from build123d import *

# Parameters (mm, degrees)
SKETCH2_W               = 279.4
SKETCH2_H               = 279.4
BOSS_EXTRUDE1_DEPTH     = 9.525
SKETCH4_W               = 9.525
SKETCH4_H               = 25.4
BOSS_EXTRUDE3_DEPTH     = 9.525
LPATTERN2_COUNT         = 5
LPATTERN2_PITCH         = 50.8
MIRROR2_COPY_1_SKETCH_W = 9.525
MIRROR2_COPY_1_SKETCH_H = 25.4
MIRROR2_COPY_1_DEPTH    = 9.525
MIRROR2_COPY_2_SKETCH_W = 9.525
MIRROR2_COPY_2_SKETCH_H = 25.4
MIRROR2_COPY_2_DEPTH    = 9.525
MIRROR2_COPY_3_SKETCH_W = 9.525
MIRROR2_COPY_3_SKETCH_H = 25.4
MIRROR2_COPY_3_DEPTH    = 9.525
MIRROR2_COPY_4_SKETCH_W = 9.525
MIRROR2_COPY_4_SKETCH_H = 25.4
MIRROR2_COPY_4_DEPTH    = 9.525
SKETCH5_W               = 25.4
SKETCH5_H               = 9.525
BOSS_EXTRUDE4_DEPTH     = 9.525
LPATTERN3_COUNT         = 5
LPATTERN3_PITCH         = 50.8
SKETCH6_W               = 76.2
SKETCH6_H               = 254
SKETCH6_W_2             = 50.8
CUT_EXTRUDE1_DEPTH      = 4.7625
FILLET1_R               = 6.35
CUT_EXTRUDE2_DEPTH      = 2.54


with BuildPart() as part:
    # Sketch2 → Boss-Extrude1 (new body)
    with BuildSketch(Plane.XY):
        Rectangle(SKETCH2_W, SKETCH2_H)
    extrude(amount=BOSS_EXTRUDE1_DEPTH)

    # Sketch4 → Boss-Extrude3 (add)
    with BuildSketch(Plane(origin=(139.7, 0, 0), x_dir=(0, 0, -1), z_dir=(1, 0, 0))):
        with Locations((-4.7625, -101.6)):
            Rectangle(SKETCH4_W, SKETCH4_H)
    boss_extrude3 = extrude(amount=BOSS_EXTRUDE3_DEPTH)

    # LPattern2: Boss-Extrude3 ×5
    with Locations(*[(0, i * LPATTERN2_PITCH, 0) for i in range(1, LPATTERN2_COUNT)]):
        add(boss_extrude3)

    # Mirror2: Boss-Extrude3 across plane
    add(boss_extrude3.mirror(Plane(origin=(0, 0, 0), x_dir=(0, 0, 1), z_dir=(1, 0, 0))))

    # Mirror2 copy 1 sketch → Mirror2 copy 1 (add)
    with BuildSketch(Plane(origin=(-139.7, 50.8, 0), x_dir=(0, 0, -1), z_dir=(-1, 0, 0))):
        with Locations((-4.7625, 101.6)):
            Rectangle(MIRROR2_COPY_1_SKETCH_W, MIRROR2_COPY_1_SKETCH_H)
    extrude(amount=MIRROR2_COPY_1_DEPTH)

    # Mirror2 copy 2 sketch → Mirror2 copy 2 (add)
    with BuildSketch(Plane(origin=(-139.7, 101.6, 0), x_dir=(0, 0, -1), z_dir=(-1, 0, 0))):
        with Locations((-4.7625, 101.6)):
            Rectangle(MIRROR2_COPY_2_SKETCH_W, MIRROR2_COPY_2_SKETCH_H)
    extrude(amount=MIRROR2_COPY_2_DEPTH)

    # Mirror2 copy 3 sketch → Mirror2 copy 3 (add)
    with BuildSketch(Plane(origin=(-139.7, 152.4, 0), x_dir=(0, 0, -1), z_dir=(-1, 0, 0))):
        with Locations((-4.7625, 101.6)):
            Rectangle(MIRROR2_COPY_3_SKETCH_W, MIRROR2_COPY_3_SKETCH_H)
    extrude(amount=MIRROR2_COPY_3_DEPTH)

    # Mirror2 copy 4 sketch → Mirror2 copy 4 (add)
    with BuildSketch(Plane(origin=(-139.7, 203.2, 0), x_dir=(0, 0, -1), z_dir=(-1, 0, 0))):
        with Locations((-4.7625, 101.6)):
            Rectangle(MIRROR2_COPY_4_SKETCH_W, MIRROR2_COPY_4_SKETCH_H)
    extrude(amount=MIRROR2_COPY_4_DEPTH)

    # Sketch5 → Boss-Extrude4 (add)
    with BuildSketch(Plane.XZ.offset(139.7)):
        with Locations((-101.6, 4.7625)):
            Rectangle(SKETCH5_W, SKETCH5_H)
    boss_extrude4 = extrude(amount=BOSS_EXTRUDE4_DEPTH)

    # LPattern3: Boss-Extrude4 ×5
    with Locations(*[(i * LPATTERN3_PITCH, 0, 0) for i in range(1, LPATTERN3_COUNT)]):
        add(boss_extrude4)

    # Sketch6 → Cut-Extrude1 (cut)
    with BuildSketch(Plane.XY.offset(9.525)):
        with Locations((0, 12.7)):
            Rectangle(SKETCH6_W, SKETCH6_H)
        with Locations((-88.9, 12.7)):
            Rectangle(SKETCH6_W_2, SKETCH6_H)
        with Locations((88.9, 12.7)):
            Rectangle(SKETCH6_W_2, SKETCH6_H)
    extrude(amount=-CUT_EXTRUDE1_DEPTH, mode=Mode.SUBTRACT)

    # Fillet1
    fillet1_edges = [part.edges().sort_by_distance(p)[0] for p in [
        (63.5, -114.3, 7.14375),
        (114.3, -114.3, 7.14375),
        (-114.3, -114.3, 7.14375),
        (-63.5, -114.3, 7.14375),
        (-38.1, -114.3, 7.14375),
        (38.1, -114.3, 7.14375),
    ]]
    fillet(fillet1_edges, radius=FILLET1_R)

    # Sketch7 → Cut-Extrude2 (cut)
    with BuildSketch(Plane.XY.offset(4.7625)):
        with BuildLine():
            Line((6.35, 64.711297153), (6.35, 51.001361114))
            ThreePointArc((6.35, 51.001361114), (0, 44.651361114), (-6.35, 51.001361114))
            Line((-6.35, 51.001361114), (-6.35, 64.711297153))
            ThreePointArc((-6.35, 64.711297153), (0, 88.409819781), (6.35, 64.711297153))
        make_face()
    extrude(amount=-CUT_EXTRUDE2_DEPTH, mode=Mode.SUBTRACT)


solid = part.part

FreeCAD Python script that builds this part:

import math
import FreeCAD as App
import Part
import Sketcher
from FreeCAD import Vector
Q = App.Units.Quantity


def edges_at(feature, points):
    """Names of the edges that pass closest to the given points."""
    edges = feature.Shape.Edges
    near = lambda p: min(range(len(edges)), key=lambda i: edges[i].distToShape(Part.Vertex(*p))[0])
    return sorted({f"Edge{near(p) + 1}" for p in points})


def add_polygon(sketch, points):
    """Adds a closed chain of lines whose ends are joined by coincident constraints."""
    first, n = sketch.GeometryCount, len(points)
    for a, b in zip(points, points[1:] + points[:1]):
        sketch.addGeometry(Part.LineSegment(App.Vector(*a, 0), App.Vector(*b, 0)), False)
    for i in range(n):
        sketch.addConstraint(Sketcher.Constraint("Coincident", first + i, 2, first + (i + 1) % n, 1))

doc = App.newDocument("Part")
body = doc.addObject("PartDesign::Body", "Body")

# Sketch on XY plane
sketch1 = body.newObject("Sketcher::SketchObject", "Sketch")
sketch1.AttachmentSupport = (doc.getObject("XY_Plane"), [""])
sketch1.MapMode = "FlatFace"
add_polygon(sketch1, [(-140, 140), (-140, -140), (140, -140), (140, 140)])  # lines 0-3
sketch1.addConstraint([
    Sketcher.Constraint("Vertical", 0),
    Sketcher.Constraint("Horizontal", 1),
    Sketcher.Constraint("Vertical", 2),
    Sketcher.Constraint("Horizontal", 3),
    Sketcher.Constraint("Symmetric", 0, 2, 2, 2, -1, 1),
    Sketcher.Constraint("Equal", 3, 0),
    Sketcher.Constraint("DistanceX", 1, 1, 1, 2, Q("11 in")),
])
pad1 = body.newObject("PartDesign::Pad", "Pad")
pad1.Profile = sketch1
pad1.Length = Q("0.375 in")

# Sketch on YZ plane
sketch2 = body.newObject("Sketcher::SketchObject", "Sketch001")
sketch2.AttachmentSupport = (doc.getObject("YZ_Plane"), [""])
sketch2.MapMode = "FlatFace"
sketch2.AttachmentOffset = App.Placement(Vector(0, 0, 5.5 * 25.4), App.Rotation())
add_polygon(sketch2, [(-89, 10), (-114, 10), (-114, 0), (-89, 0)])  # lines 0-3
sketch2.addConstraint([
    Sketcher.Constraint("Horizontal", 0),
    Sketcher.Constraint("Vertical", 1),
    Sketcher.Constraint("Horizontal", 2),
    Sketcher.Constraint("Vertical", 3),
    Sketcher.Constraint("PointOnObject", 1, 2, -1),
    Sketcher.Constraint("DistanceX", 0, 2, 0, 1, Q("1 in")),
    Sketcher.Constraint("DistanceX", 0, 2, -1, 1, Q("4.5 in")),
    Sketcher.Constraint("DistanceY", 1, 2, 1, 1, Q("0.375 in")),
])
pad2 = body.newObject("PartDesign::Pad", "Pad001")
pad2.Profile = sketch2
pad2.Length = Q("0.375 in")
doc.recompute()

linearpattern = body.newObject("PartDesign::LinearPattern", "LinearPattern")
linearpattern.Originals = [pad2]
linearpattern.Direction = (doc.getObject("Y_Axis"), [""])
linearpattern.Mode = "offset"
linearpattern.Offset = Q("2 in")
linearpattern.Occurrences = 5
body.Tip = linearpattern
doc.recompute()

mirrored = body.newObject("PartDesign::Mirrored", "Mirrored")
mirrored.Originals = [pad2]
mirrored.MirrorPlane = (doc.getObject("YZ_Plane"), [""])
body.Tip = mirrored

# Sketch on YZ plane
sketch3 = body.newObject("Sketcher::SketchObject", "Sketch002")
sketch3.AttachmentSupport = (doc.getObject("YZ_Plane"), [""])
sketch3.MapMode = "FlatFace"
sketch3.AttachmentOffset = App.Placement(Vector(0, 0, -5.5 * 25.4), App.Rotation())
add_polygon(sketch3, [(-64, 10), (-38, 10), (-38, 0), (-64, 0)])  # lines 0-3
sketch3.addConstraint([
    Sketcher.Constraint("Horizontal", 0),
    Sketcher.Constraint("Vertical", 1),
    Sketcher.Constraint("Horizontal", 2),
    Sketcher.Constraint("Vertical", 3),
    Sketcher.Constraint("PointOnObject", 1, 2, -1),
    Sketcher.Constraint("DistanceX", 0, 1, 0, 2, Q("1 in")),
    Sketcher.Constraint("DistanceX", 0, 2, -1, 1, Q("1.5 in")),
    Sketcher.Constraint("DistanceY", 1, 2, 1, 1, Q("0.375 in")),
])
pad3 = body.newObject("PartDesign::Pad", "Pad002")
pad3.Profile = sketch3
pad3.Length = Q("0.375 in")
pad3.Reversed = True

# Sketch on YZ plane
sketch4 = body.newObject("Sketcher::SketchObject", "Sketch003")
sketch4.AttachmentSupport = (doc.getObject("YZ_Plane"), [""])
sketch4.MapMode = "FlatFace"
sketch4.AttachmentOffset = App.Placement(Vector(0, 0, -5.5 * 25.4), App.Rotation())
add_polygon(sketch4, [(-13, 10), (13, 10), (13, 0), (-13, 0)])  # lines 0-3
sketch4.addConstraint([
    Sketcher.Constraint("Horizontal", 0),
    Sketcher.Constraint("Vertical", 1),
    Sketcher.Constraint("Horizontal", 2),
    Sketcher.Constraint("Vertical", 3),
    Sketcher.Constraint("Symmetric", 1, 2, 2, 2, -1, 1),
    Sketcher.Constraint("DistanceX", 0, 1, 0, 2, Q("1 in")),
    Sketcher.Constraint("DistanceY", 1, 2, 1, 1, Q("0.375 in")),
])
pad4 = body.newObject("PartDesign::Pad", "Pad003")
pad4.Profile = sketch4
pad4.Length = Q("0.375 in")
pad4.Reversed = True

# Sketch on YZ plane
sketch5 = body.newObject("Sketcher::SketchObject", "Sketch004")
sketch5.AttachmentSupport = (doc.getObject("YZ_Plane"), [""])
sketch5.MapMode = "FlatFace"
sketch5.AttachmentOffset = App.Placement(Vector(0, 0, -5.5 * 25.4), App.Rotation())
add_polygon(sketch5, [(38, 10), (64, 10), (64, 0), (38, 0)])  # lines 0-3
sketch5.addConstraint([
    Sketcher.Constraint("Horizontal", 0),
    Sketcher.Constraint("Vertical", 1),
    Sketcher.Constraint("Horizontal", 2),
    Sketcher.Constraint("Vertical", 3),
    Sketcher.Constraint("PointOnObject", 1, 2, -1),
    Sketcher.Constraint("DistanceX", 0, 1, 0, 2, Q("1 in")),
    Sketcher.Constraint("DistanceX", -1, 1, 0, 2, Q("2.5 in")),
    Sketcher.Constraint("DistanceY", 1, 2, 1, 1, Q("0.375 in")),
])
pad5 = body.newObject("PartDesign::Pad", "Pad004")
pad5.Profile = sketch5
pad5.Length = Q("0.375 in")
pad5.Reversed = True

# Sketch on YZ plane
sketch6 = body.newObject("Sketcher::SketchObject", "Sketch005")
sketch6.AttachmentSupport = (doc.getObject("YZ_Plane"), [""])
sketch6.MapMode = "FlatFace"
sketch6.AttachmentOffset = App.Placement(Vector(0, 0, -5.5 * 25.4), App.Rotation())
add_polygon(sketch6, [(89, 10), (114, 10), (114, 0), (89, 0)])  # lines 0-3
sketch6.addConstraint([
    Sketcher.Constraint("Horizontal", 0),
    Sketcher.Constraint("Vertical", 1),
    Sketcher.Constraint("Horizontal", 2),
    Sketcher.Constraint("Vertical", 3),
    Sketcher.Constraint("PointOnObject", 1, 2, -1),
    Sketcher.Constraint("DistanceX", 0, 1, 0, 2, Q("1 in")),
    Sketcher.Constraint("DistanceX", -1, 1, 0, 2, Q("4.5 in")),
    Sketcher.Constraint("DistanceY", 1, 2, 1, 1, Q("0.375 in")),
])
pad6 = body.newObject("PartDesign::Pad", "Pad005")
pad6.Profile = sketch6
pad6.Length = Q("0.375 in")
pad6.Reversed = True

# Sketch on XZ plane
sketch7 = body.newObject("Sketcher::SketchObject", "Sketch006")
sketch7.AttachmentSupport = (doc.getObject("XZ_Plane"), [""])
sketch7.MapMode = "FlatFace"
sketch7.AttachmentOffset = App.Placement(Vector(0, 0, 5.5 * 25.4), App.Rotation())
add_polygon(sketch7, [(-114, 10), (-114, 0), (-89, 0), (-89, 10)])  # lines 0-3
sketch7.addConstraint([
    Sketcher.Constraint("Vertical", 0),
    Sketcher.Constraint("Horizontal", 1),
    Sketcher.Constraint("Vertical", 2),
    Sketcher.Constraint("Horizontal", 3),
    Sketcher.Constraint("PointOnObject", 0, 2, -1),
    Sketcher.Constraint("DistanceX", 1, 1, 1, 2, Q("1 in")),
    Sketcher.Constraint("DistanceX", 0, 2, -1, 1, Q("4.5 in")),
    Sketcher.Constraint("DistanceY", 0, 2, 0, 1, Q("0.375 in")),
])
pad7 = body.newObject("PartDesign::Pad", "Pad006")
pad7.Profile = sketch7
pad7.Length = Q("0.375 in")
doc.recompute()

linearpattern2 = body.newObject("PartDesign::LinearPattern", "LinearPattern001")
linearpattern2.Originals = [pad7]
linearpattern2.Direction = (doc.getObject("X_Axis"), [""])
linearpattern2.Mode = "offset"
linearpattern2.Offset = Q("2 in")
linearpattern2.Occurrences = 5
body.Tip = linearpattern2

# Sketch on XY plane
sketch8 = body.newObject("Sketcher::SketchObject", "Sketch007")
sketch8.AttachmentSupport = (doc.getObject("XY_Plane"), [""])
sketch8.MapMode = "FlatFace"
sketch8.AttachmentOffset = App.Placement(Vector(0, 0, 0.375 * 25.4), App.Rotation())
add_polygon(sketch8, [(-38, 140), (-38, -114), (38, -114), (38, 140)])  # lines 0-3
add_polygon(sketch8, [(-114, 140), (-114, -114), (-64, -114), (-64, 140)])  # lines 4-7
add_polygon(sketch8, [(64, 140), (64, -114), (114, -114), (114, 140)])  # lines 8-11
sketch8.addConstraint([
    Sketcher.Constraint("Vertical", 0),
    Sketcher.Constraint("Horizontal", 1),
    Sketcher.Constraint("Vertical", 2),
    Sketcher.Constraint("Horizontal", 3),
    Sketcher.Constraint("Vertical", 4),
    Sketcher.Constraint("Horizontal", 5),
    Sketcher.Constraint("Vertical", 6),
    Sketcher.Constraint("Horizontal", 7),
    Sketcher.Constraint("Vertical", 8),
    Sketcher.Constraint("Horizontal", 9),
    Sketcher.Constraint("Vertical", 10),
    Sketcher.Constraint("Horizontal", 11),
    Sketcher.Constraint("Symmetric", 5, 2, 8, 2, -2),
    Sketcher.Constraint("Symmetric", 7, 2, 10, 2, -2),
    Sketcher.Constraint("Horizontal", 1, 2, 4, 2),
    Sketcher.Constraint("Horizontal", 3, 2, 6, 2),
    Sketcher.Constraint("DistanceX", 1, 1, 1, 2, Q("3 in")),
    Sketcher.Constraint("DistanceX", 5, 1, 5, 2, Q("2 in")),
    Sketcher.Constraint("DistanceY", 0, 2, 0, 1, Q("10 in")),
    Sketcher.Constraint("DistanceX", 4, 2, 0, 2, Q("3 in")),
    Sketcher.Constraint("DistanceX", 1, 2, 8, 2, Q("1 in")),
    Sketcher.Constraint("DistanceY", 0, 2, -1, 1, Q("4.5 in")),
])
pocket1 = body.newObject("PartDesign::Pocket", "Pocket")
pocket1.Profile = sketch8
pocket1.Length = Q("0.1875 in")
doc.recompute()

fillet = body.newObject("PartDesign::Fillet", "Fillet")
fillet.Base = (pocket1, edges_at(pocket1, [
    (63.5, -114.3, 7.144),
    (114.3, -114.3, 7.144),
    (-114.3, -114.3, 7.144),
    (-63.5, -114.3, 7.144),
    (-38.1, -114.3, 7.144),
    (38.1, -114.3, 7.144),
]))
fillet.Radius = Q("0.25 in")

# Sketch on XY plane
sketch9 = body.newObject("Sketcher::SketchObject", "Sketch008")
sketch9.AttachmentSupport = (doc.getObject("XY_Plane"), [""])
sketch9.MapMode = "FlatFace"
sketch9.AttachmentOffset = App.Placement(Vector(0, 0, 0.1875 * 25.4), App.Rotation())
sketch9.addGeometry([
    Part.LineSegment(Vector(6, 51, 0), Vector(6, 65, 0)),
    Part.ArcOfCircle(Part.Circle(Vector(0, 76, 0), Vector(0, 0, 1), 13), math.radians(-60), math.radians(240)),
    Part.LineSegment(Vector(-6, 65, 0), Vector(-6, 51, 0)),
    Part.ArcOfCircle(Part.Circle(Vector(0, 51, 0), Vector(0, 0, 1), 6), math.radians(180), math.radians(360)),
], False)
sketch9.addConstraint([
    Sketcher.Constraint("Coincident", 0, 2, 1, 1),
    Sketcher.Constraint("Coincident", 1, 2, 2, 1),
    Sketcher.Constraint("Tangent", 2, 2, 3, 1),
    Sketcher.Constraint("Tangent", 3, 2, 0, 1),
    Sketcher.Constraint("Vertical", 0),
    Sketcher.Constraint("Vertical", 2),
    Sketcher.Constraint("Symmetric", 0, 2, 1, 2, -2),
    Sketcher.Constraint("Radius", 1, Q("0.5 in")),
    Sketcher.Constraint("Radius", 3, Q("0.25 in")),
    Sketcher.Constraint("DistanceY", 0, 1, 0, 2, Q("13.709936 mm")),
    Sketcher.Constraint("DistanceY", -1, 1, 1, 3, Q("75.70982 mm")),
])
pocket2 = body.newObject("PartDesign::Pocket", "Pocket001")
pocket2.Profile = sketch9
pocket2.Length = Q("0.1 in")

doc.recompute()
